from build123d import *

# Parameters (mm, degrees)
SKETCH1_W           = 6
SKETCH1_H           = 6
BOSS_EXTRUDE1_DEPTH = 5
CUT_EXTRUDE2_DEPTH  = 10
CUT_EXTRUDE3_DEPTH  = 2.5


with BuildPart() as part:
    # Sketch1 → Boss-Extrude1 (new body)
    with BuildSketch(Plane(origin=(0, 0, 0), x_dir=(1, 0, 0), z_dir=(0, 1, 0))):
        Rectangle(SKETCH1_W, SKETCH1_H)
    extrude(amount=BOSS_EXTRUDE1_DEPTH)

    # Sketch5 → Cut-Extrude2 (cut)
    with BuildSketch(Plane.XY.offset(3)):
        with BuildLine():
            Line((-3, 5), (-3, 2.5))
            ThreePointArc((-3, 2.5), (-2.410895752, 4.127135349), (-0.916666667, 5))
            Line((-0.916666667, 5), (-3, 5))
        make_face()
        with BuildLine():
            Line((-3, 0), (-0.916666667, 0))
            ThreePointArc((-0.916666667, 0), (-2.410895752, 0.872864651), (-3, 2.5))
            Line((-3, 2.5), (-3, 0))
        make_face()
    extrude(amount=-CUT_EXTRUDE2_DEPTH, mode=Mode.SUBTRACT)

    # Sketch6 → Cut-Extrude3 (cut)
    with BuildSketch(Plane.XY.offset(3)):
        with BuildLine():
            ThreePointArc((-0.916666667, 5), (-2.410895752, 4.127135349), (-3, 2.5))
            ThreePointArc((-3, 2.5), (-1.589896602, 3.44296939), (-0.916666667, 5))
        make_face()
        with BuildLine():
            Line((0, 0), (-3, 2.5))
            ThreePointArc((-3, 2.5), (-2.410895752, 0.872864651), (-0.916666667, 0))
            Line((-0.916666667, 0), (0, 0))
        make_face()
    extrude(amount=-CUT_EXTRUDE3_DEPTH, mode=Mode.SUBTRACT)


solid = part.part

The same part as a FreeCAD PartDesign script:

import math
import FreeCAD as App
import Part
import Sketcher


def add_polygon(sketch, points):
    """Adds a closed chain of lines whose ends are joined by coincident constraints."""
    first, n = sketch.GeometryCount, len(points)
    for a, b in zip(points, points[1:] + points[:1]):
        sketch.addGeometry(Part.LineSegment(App.Vector(*a, 0), App.Vector(*b, 0)), False)
    for i in range(n):
        sketch.addConstraint(Sketcher.Constraint("Coincident", first + i, 2, first + (i + 1) % n, 1))

doc = App.newDocument("Part")
body = doc.addObject("PartDesign::Body", "Body")

# Sketch on XZ plane
sketch1 = body.newObject("Sketcher::SketchObject", "Sketch")
sketch1.AttachmentSupport = (doc.getObject("XZ_Plane"), [""])
sketch1.MapMode = "FlatFace"
add_polygon(sketch1, [(-3, -3), (-3, 3), (3, 3), (3, -3)])  # lines 0-3
sketch1.addConstraint([
    Sketcher.Constraint("Vertical", 0),
    Sketcher.Constraint("Horizontal", 1),
    Sketcher.Constraint("Vertical", 2),
    Sketcher.Constraint("Horizontal", 3),
    Sketcher.Constraint("Symmetric", 0, 2, 2, 2, -1, 1),
    Sketcher.Constraint("Equal", 3, 0),
    Sketcher.Constraint("DistanceX", 1, 1, 1, 2, 6.0),
])
pad1 = body.newObject("PartDesign::Pad", "Pad")
pad1.Profile = sketch1
pad1.Length = 5
pad1.Reversed = True

# Sketch on XY plane
sketch2 = body.newObject("Sketcher::SketchObject", "Sketch001")
sketch2.AttachmentSupport = (doc.getObject("XY_Plane"), [""])
sketch2.MapMode = "FlatFace"
sketch2.AttachmentOffset = App.Placement(App.Vector(0, 0, 3), App.Rotation())
sketch2.addGeometry([
    Part.LineSegment(App.Vector(-3, 5, 0), App.Vector(-3, 2.5, 0)),  # 0
    Part.ArcOfCircle(Part.Circle(App.Vector(-0.5, 2.5, 0), App.Vector(0, 0, 1), 2.5), math.radians(100), math.radians(180)),  # 1
    Part.LineSegment(App.Vector(-0.9, 5, 0), App.Vector(-3, 5, 0)),  # 2
    Part.LineSegment(App.Vector(-3, 0, 0), App.Vector(-0.9, 0, 0)),  # 3
    Part.ArcOfCircle(Part.Circle(App.Vector(-0.5, 2.5, 0), App.Vector(0, 0, 1), 2.5), math.radians(-180), math.radians(-100)),  # 4
    Part.LineSegment(App.Vector(-3, 2.5, 0), App.Vector(-3, 0, 0)),  # 5
], False)
sketch2.addConstraint([
    Sketcher.Constraint("Tangent", 0, 2, 1, 2),
    Sketcher.Constraint("Coincident", 1, 1, 2, 1),
    Sketcher.Constraint("Coincident", 2, 2, 0, 1),
    Sketcher.Constraint("Coincident", 3, 2, 4, 2),
    Sketcher.Constraint("Tangent", 4, 1, 5, 1),
    Sketcher.Constraint("Coincident", 5, 2, 3, 1),
    Sketcher.Constraint("Vertical", 0),
    Sketcher.Constraint("Horizontal", 2),
    Sketcher.Constraint("Horizontal", 3),
    Sketcher.Constraint("Vertical", 5),
    Sketcher.Constraint("Coincident", 4, 3, 1, 3),
    Sketcher.Constraint("Equal", 1, 4),
    Sketcher.Constraint("PointOnObject", 3, 2, -1),
    Sketcher.Constraint("Vertical", 1, 1, 3, 2),
    Sketcher.Constraint("DistanceY", 0, 2, 0, 1, 2.5),
    Sketcher.Constraint("DistanceX", 0, 2, -1, 1, 3.0),
    Sketcher.Constraint("Radius", 1, 2.541667),
])
pocket1 = body.newObject("PartDesign::Pocket", "Pocket")
pocket1.Profile = sketch2
pocket1.Length = 10

# Sketch on XY plane
sketch3 = body.newObject("Sketcher::SketchObject", "Sketch002")
sketch3.AttachmentSupport = (doc.getObject("XY_Plane"), [""])
sketch3.MapMode = "FlatFace"
sketch3.AttachmentOffset = App.Placement(App.Vector(0, 0, 3), App.Rotation())
sketch3.addGeometry([
    Part.ArcOfCircle(Part.Circle(App.Vector(-0.5, 2.5, 0), App.Vector(0, 0, 1), 2.5), math.radians(100), math.radians(180)),  # 0
    Part.ArcOfCircle(Part.Circle(App.Vector(-3.9, 5.4, 0), App.Vector(0, 0, 1), 3), math.radians(-73), math.radians(-7)),  # 1
    Part.LineSegment(App.Vector(0, 0, 0), App.Vector(-3, 2.5, 0)),  # 2
    Part.ArcOfCircle(Part.Circle(App.Vector(-0.5, 2.5, 0), App.Vector(0, 0, 1), 2.5), math.radians(-180), math.radians(-100)),  # 3
    Part.LineSegment(App.Vector(-0.9, 0, 0), App.Vector(0, 0, 0)),  # 4
], False)
sketch3.addConstraint([
    Sketcher.Constraint("Coincident", 0, 1, 1, 2),
    Sketcher.Constraint("Coincident", 1, 1, 0, 2),
    Sketcher.Constraint("Coincident", 2, 2, 3, 1),
    Sketcher.Constraint("Coincident", 3, 2, 4, 1),
    Sketcher.Constraint("Coincident", 4, 2, 2, 1),
    Sketcher.Constraint("Horizontal", 4),
    Sketcher.Constraint("Coincident", 4, 2, -1, 1),
    Sketcher.Constraint("Coincident", 3, 3, 0, 3),
    Sketcher.Constraint("Coincident", 2, 2, 1, 1),
    Sketcher.Constraint("Horizontal", 3, 3, 1, 1),
    Sketcher.Constraint("Vertical", 0, 1, 3, 2),
    Sketcher.Constraint("Radius", 1, 3.0),
    Sketcher.Constraint("DistanceY", -1, 1, 0, 1, 5.0),
    Sketcher.Constraint("DistanceX", 1, 1, -1, 1, 3.0),
    Sketcher.Constraint("Radius", 0, 2.541667),
])
pocket2 = body.newObject("PartDesign::Pocket", "Pocket001")
pocket2.Profile = sketch3
pocket2.Length = 2.5

doc.recompute()
